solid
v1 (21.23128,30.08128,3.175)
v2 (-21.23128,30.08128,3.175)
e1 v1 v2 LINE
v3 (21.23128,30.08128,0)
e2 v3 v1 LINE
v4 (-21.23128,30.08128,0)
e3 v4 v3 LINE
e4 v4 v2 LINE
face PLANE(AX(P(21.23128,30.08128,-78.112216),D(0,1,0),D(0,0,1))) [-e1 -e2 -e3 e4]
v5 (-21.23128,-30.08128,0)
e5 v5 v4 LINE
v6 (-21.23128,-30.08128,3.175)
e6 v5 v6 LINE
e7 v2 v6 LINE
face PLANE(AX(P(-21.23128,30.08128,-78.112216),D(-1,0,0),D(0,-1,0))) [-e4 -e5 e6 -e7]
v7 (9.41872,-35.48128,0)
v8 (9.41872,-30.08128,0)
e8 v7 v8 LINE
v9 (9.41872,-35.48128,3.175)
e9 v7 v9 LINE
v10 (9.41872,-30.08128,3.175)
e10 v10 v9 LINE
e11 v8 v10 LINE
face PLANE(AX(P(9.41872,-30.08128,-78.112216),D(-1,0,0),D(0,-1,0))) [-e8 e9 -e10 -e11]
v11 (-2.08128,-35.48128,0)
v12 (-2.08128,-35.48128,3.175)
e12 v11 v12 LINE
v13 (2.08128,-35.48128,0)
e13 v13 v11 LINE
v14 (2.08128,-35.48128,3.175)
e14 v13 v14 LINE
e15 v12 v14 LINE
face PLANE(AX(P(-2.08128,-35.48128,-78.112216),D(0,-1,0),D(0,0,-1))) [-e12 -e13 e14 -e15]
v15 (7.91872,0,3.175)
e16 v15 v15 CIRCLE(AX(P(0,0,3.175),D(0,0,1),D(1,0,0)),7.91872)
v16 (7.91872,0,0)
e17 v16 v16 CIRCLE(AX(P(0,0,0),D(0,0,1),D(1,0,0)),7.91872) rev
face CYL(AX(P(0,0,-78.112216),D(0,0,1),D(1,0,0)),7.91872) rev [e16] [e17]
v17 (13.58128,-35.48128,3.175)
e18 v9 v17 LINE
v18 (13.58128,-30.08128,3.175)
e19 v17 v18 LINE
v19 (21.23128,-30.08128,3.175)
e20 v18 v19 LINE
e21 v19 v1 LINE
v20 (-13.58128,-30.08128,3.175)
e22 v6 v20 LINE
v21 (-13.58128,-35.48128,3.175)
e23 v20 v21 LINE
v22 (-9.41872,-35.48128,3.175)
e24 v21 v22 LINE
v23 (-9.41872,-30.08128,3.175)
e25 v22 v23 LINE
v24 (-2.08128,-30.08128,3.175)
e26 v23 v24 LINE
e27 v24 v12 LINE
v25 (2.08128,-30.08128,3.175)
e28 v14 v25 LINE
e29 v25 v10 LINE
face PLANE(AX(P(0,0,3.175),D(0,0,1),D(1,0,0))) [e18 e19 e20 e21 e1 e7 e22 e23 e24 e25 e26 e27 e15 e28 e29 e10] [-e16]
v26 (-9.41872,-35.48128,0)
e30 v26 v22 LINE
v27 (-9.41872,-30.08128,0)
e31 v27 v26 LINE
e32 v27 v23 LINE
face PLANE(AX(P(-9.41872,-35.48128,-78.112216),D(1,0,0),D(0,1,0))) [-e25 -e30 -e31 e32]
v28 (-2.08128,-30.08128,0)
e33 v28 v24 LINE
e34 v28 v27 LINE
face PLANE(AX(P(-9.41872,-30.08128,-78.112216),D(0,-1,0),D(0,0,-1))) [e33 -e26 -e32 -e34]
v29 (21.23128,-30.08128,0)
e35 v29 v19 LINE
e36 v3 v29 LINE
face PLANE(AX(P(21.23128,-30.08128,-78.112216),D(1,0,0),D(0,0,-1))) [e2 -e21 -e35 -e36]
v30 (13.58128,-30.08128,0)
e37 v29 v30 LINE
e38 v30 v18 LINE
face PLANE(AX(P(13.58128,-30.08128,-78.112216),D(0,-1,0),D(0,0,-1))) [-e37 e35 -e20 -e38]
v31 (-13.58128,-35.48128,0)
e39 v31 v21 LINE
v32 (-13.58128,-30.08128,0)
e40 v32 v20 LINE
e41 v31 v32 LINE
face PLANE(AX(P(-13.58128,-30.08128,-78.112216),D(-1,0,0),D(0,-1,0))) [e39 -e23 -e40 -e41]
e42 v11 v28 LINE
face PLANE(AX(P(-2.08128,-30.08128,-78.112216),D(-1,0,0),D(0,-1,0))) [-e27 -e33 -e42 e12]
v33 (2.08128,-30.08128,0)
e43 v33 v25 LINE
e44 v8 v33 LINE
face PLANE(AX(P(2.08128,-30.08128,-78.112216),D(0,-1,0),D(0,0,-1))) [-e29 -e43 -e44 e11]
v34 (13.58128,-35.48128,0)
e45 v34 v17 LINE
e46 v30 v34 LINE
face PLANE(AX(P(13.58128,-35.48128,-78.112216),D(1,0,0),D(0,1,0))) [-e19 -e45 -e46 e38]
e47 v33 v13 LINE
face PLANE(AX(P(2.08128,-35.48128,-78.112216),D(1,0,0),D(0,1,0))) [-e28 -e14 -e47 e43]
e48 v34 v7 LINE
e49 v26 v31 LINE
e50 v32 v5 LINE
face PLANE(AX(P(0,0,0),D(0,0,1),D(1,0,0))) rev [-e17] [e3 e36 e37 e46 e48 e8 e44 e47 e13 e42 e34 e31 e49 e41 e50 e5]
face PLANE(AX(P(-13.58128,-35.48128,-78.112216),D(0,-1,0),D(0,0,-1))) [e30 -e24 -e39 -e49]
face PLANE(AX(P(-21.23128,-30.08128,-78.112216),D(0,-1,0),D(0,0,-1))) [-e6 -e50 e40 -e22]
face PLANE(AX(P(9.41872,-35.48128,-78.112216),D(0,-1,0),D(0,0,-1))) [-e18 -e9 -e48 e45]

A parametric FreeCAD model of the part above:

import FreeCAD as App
import Part
import Sketcher
Q = App.Units.Quantity

doc = App.newDocument("Part")
body = doc.addObject("PartDesign::Body", "Body")

# Sketch on XY plane
sketch1 = doc.addObject("Sketcher::SketchObject", "Sketch")
body.addObject(sketch1)
sketch1.AttachmentSupport = (doc.XY_Plane, [""])
sketch1.MapMode = "FlatFace"
sketch1.addGeometry(Part.LineSegment(App.Vector(-21.15, 30, 0), App.Vector(-21.15, -30, 0)), False)
sketch1.addGeometry(Part.LineSegment(App.Vector(-21.15, -30, 0), App.Vector(-13.5, -30, 0)), False)
sketch1.addGeometry(Part.LineSegment(App.Vector(-13.5, -30, 0), App.Vector(-13.5, -35.4, 0)), False)
sketch1.addGeometry(Part.LineSegment(App.Vector(-13.5, -35.4, 0), App.Vector(-9.5, -35.4, 0)), False)
sketch1.addGeometry(Part.LineSegment(App.Vector(-9.5, -35.4, 0), App.Vector(-9.5, -30, 0)), False)
sketch1.addGeometry(Part.LineSegment(App.Vector(-9.5, -30, 0), App.Vector(-2, -30, 0)), False)
sketch1.addGeometry(Part.LineSegment(App.Vector(-2, -30, 0), App.Vector(-2, -35.4, 0)), False)
sketch1.addGeometry(Part.LineSegment(App.Vector(-2, -35.4, 0), App.Vector(2, -35.4, 0)), False)
sketch1.addGeometry(Part.LineSegment(App.Vector(2, -35.4, 0), App.Vector(2, -30, 0)), False)
sketch1.addGeometry(Part.LineSegment(App.Vector(2, -30, 0), App.Vector(9.5, -30, 0)), False)
sketch1.addGeometry(Part.LineSegment(App.Vector(9.5, -30, 0), App.Vector(9.5, -35.4, 0)), False)
sketch1.addGeometry(Part.LineSegment(App.Vector(9.5, -35.4, 0), App.Vector(13.5, -35.4, 0)), False)
sketch1.addGeometry(Part.LineSegment(App.Vector(13.5, -35.4, 0), App.Vector(13.5, -30, 0)), False)
sketch1.addGeometry(Part.LineSegment(App.Vector(13.5, -30, 0), App.Vector(21.15, -30, 0)), False)
sketch1.addGeometry(Part.LineSegment(App.Vector(21.15, -30, 0), App.Vector(21.15, 30, 0)), False)
sketch1.addGeometry(Part.LineSegment(App.Vector(21.15, 30, 0), App.Vector(-21.15, 30, 0)), False)
sketch1.addGeometry(Part.Circle(App.Vector(0, 0, 0), App.Vector(0, 0, 1), 8), False)
sketch1.addConstraint(Sketcher.Constraint("Coincident", 0, 2, 1, 1))
sketch1.addConstraint(Sketcher.Constraint("Coincident", 1, 2, 2, 1))
sketch1.addConstraint(Sketcher.Constraint("Coincident", 2, 2, 3, 1))
sketch1.addConstraint(Sketcher.Constraint("Coincident", 3, 2, 4, 1))
sketch1.addConstraint(Sketcher.Constraint("Coincident", 4, 2, 5, 1))
sketch1.addConstraint(Sketcher.Constraint("Coincident", 5, 2, 6, 1))
sketch1.addConstraint(Sketcher.Constraint("Coincident", 6, 2, 7, 1))
sketch1.addConstraint(Sketcher.Constraint("Coincident", 7, 2, 8, 1))
sketch1.addConstraint(Sketcher.Constraint("Coincident", 8, 2, 9, 1))
sketch1.addConstraint(Sketcher.Constraint("Coincident", 9, 2, 10, 1))
sketch1.addConstraint(Sketcher.Constraint("Coincident", 10, 2, 11, 1))
sketch1.addConstraint(Sketcher.Constraint("Coincident", 11, 2, 12, 1))
sketch1.addConstraint(Sketcher.Constraint("Coincident", 12, 2, 13, 1))
sketch1.addConstraint(Sketcher.Constraint("Coincident", 13, 2, 14, 1))
sketch1.addConstraint(Sketcher.Constraint("Coincident", 14, 2, 15, 1))
sketch1.addConstraint(Sketcher.Constraint("Coincident", 15, 2, 0, 1))
sketch1.addConstraint(Sketcher.Constraint("Vertical", 0))
sketch1.addConstraint(Sketcher.Constraint("Horizontal", 1))
sketch1.addConstraint(Sketcher.Constraint("Vertical", 2))
sketch1.addConstraint(Sketcher.Constraint("Horizontal", 3))
sketch1.addConstraint(Sketcher.Constraint("Vertical", 4))
sketch1.addConstraint(Sketcher.Constraint("Horizontal", 5))
sketch1.addConstraint(Sketcher.Constraint("Vertical", 6))
sketch1.addConstraint(Sketcher.Constraint("Horizontal", 7))
sketch1.addConstraint(Sketcher.Constraint("Vertical", 8))
sketch1.addConstraint(Sketcher.Constraint("Horizontal", 9))
sketch1.addConstraint(Sketcher.Constraint("Vertical", 10))
sketch1.addConstraint(Sketcher.Constraint("Horizontal", 11))
sketch1.addConstraint(Sketcher.Constraint("Vertical", 12))
sketch1.addConstraint(Sketcher.Constraint("Horizontal", 13))
sketch1.addConstraint(Sketcher.Constraint("Vertical", 14))
sketch1.addConstraint(Sketcher.Constraint("Horizontal", 15))
sketch1.addConstraint(Sketcher.Constraint("Coincident", 16, 3, -1, 1))
sketch1.addConstraint(Sketcher.Constraint("Symmetric", 0, 2, 14, 2, -1, 1))
sketch1.addConstraint(Sketcher.Constraint("Symmetric", 5, 2, 8, 2, -2))
sketch1.addConstraint(Sketcher.Constraint("Symmetric", 3, 2, 10, 2, -2))
sketch1.addConstraint(Sketcher.Constraint("Symmetric", 1, 2, 12, 2, -2))
sketch1.addConstraint(Sketcher.Constraint("Horizontal", 1, 2, 4, 2))
sketch1.addConstraint(Sketcher.Constraint("Horizontal", 3, 2, 6, 2))
sketch1.addConstraint(Sketcher.Constraint("Equal", 3, 7))
sketch1.addConstraint(Sketcher.Constraint("Diameter", 16, Q("16 mm")))
sketch1.addConstraint(Sketcher.Constraint("DistanceX", 3, 1, 3, 2, Q("4 mm")))
sketch1.addConstraint(Sketcher.Constraint("DistanceY", 0, 2, 0, 1, Q("60 mm")))
sketch1.addConstraint(Sketcher.Constraint("DistanceX", 5, 1, 5, 2, Q("7.5 mm")))
sketch1.addConstraint(Sketcher.Constraint("DistanceX", 15, 2, 15, 1, Q("42.3 mm")))
sketch1.addConstraint(Sketcher.Constraint("DistanceY", 2, 2, 2, 1, Q("5.4 mm")))
pad1 = doc.addObject("PartDesign::Pad", "Pad")
body.addObject(pad1)
pad1.Profile = sketch1
pad1.Length = 3.175

# Sketch on XY plane
sketch2 = doc.addObject("Sketcher::SketchObject", "Sketch001")
body.addObject(sketch2)
sketch2.AttachmentSupport = (doc.XY_Plane, [""])
sketch2.MapMode = "FlatFace"
sketch2.AttachmentOffset = App.Placement(App.Vector(0, 0, 3.175), App.Rotation())
sketch2.addGeometry(Part.LineSegment(App.Vector(21.19064, -30.04064, 0), App.Vector(21.19064, 30.04064, 0)), False)
sketch2.addGeometry(Part.LineSegment(App.Vector(21.19064, 30.04064, 0), App.Vector(-21.19064, 30.04064, 0)), False)
sketch2.addGeometry(Part.LineSegment(App.Vector(-21.19064, 30.04064, 0), App.Vector(-21.19064, -30.04064, 0)), False)
sketch2.addGeometry(Part.LineSegment(App.Vector(-21.19064, -30.04064, 0), App.Vector(-13.54064, -30.04064, 0)), False)
sketch2.addGeometry(Part.LineSegment(App.Vector(-13.54064, -30.04064, 0), App.Vector(-13.54064, -35.44064, 0)), False)
sketch2.addGeometry(Part.LineSegment(App.Vector(-13.54064, -35.44064, 0), App.Vector(-9.45936, -35.44064, 0)), False)
sketch2.addGeometry(Part.LineSegment(App.Vector(-9.45936, -35.44064, 0), App.Vector(-9.45936, -30.04064, 0)), False)
sketch2.addGeometry(Part.LineSegment(App.Vector(-9.45936, -30.04064, 0), App.Vector(-2.04064, -30.04064, 0)), False)
sketch2.addGeometry(Part.LineSegment(App.Vector(-2.04064, -30.04064, 0), App.Vector(-2.04064, -35.44064, 0)), False)
sketch2.addGeometry(Part.LineSegment(App.Vector(-2.04064, -35.44064, 0), App.Vector(2.04064, -35.44064, 0)), False)
sketch2.addGeometry(Part.LineSegment(App.Vector(2.04064, -35.44064, 0), App.Vector(2.04064, -30.04064, 0)), False)
sketch2.addGeometry(Part.LineSegment(App.Vector(2.04064, -30.04064, 0), App.Vector(9.45936, -30.04064, 0)), False)
sketch2.addGeometry(Part.LineSegment(App.Vector(9.45936, -30.04064, 0), App.Vector(9.45936, -35.44064, 0)), False)
sketch2.addGeometry(Part.LineSegment(App.Vector(9.45936, -35.44064, 0), App.Vector(13.54064, -35.44064, 0)), False)
sketch2.addGeometry(Part.LineSegment(App.Vector(13.54064, -35.44064, 0), App.Vector(13.54064, -30.04064, 0)), False)
sketch2.addGeometry(Part.LineSegment(App.Vector(13.54064, -30.04064, 0), App.Vector(21.19064, -30.04064, 0)), False)
sketch2.addGeometry(Part.Circle(App.Vector(0, 0, 0), App.Vector(0, 0, 1), 7.95936), False)
sketch2.addConstraint(Sketcher.Constraint("Coincident", 0, 2, 1, 1))
sketch2.addConstraint(Sketcher.Constraint("Coincident", 1, 2, 2, 1))
sketch2.addConstraint(Sketcher.Constraint("Coincident", 2, 2, 3, 1))
sketch2.addConstraint(Sketcher.Constraint("Coincident", 3, 2, 4, 1))
sketch2.addConstraint(Sketcher.Constraint("Coincident", 4, 2, 5, 1))
sketch2.addConstraint(Sketcher.Constraint("Coincident", 5, 2, 6, 1))
sketch2.addConstraint(Sketcher.Constraint("Coincident", 6, 2, 7, 1))
sketch2.addConstraint(Sketcher.Constraint("Coincident", 7, 2, 8, 1))
sketch2.addConstraint(Sketcher.Constraint("Coincident", 8, 2, 9, 1))
sketch2.addConstraint(Sketcher.Constraint("Coincident", 9, 2, 10, 1))
sketch2.addConstraint(Sketcher.Constraint("Coincident", 10, 2, 11, 1))
sketch2.addConstraint(Sketcher.Constraint("Coincident", 11, 2, 12, 1))
sketch2.addConstraint(Sketcher.Constraint("Coincident", 12, 2, 13, 1))
sketch2.addConstraint(Sketcher.Constraint("Coincident", 13, 2, 14, 1))
sketch2.addConstraint(Sketcher.Constraint("Coincident", 14, 2, 15, 1))
sketch2.addConstraint(Sketcher.Constraint("Coincident", 15, 2, 0, 1))
sketch2.addConstraint(Sketcher.Constraint("Vertical", 0))
sketch2.addConstraint(Sketcher.Constraint("Horizontal", 1))
sketch2.addConstraint(Sketcher.Constraint("Vertical", 2))
sketch2.addConstraint(Sketcher.Constraint("Horizontal", 3))
sketch2.addConstraint(Sketcher.Constraint("Vertical", 4))
sketch2.addConstraint(Sketcher.Constraint("Horizontal", 5))
sketch2.addConstraint(Sketcher.Constraint("Vertical", 6))
sketch2.addConstraint(Sketcher.Constraint("Horizontal", 7))
sketch2.addConstraint(Sketcher.Constraint("Vertical", 8))
sketch2.addConstraint(Sketcher.Constraint("Horizontal", 9))
sketch2.addConstraint(Sketcher.Constraint("Vertical", 10))
sketch2.addConstraint(Sketcher.Constraint("Horizontal", 11))
sketch2.addConstraint(Sketcher.Constraint("Vertical", 12))
sketch2.addConstraint(Sketcher.Constraint("Horizontal", 13))
sketch2.addConstraint(Sketcher.Constraint("Vertical", 14))
sketch2.addConstraint(Sketcher.Constraint("Horizontal", 15))
sketch2.addConstraint(Sketcher.Constraint("Coincident", 16, 3, -1, 1))
sketch2.addConstraint(Sketcher.Constraint("Symmetric", 0, 2, 2, 2, -1, 1))
sketch2.addConstraint(Sketcher.Constraint("Symmetric", 7, 2, 10, 2, -2))
sketch2.addConstraint(Sketcher.Constraint("Symmetric", 5, 2, 12, 2, -2))
sketch2.addConstraint(Sketcher.Constraint("Symmetric", 3, 2, 14, 2, -2))
sketch2.addConstraint(Sketcher.Constraint("Horizontal", 3, 2, 6, 2))
sketch2.addConstraint(Sketcher.Constraint("Horizontal", 5, 2, 8, 2))
sketch2.addConstraint(Sketcher.Constraint("Equal", 5, 9))
sketch2.addConstraint(Sketcher.Constraint("DistanceY", 4, 2, 4, 1, Q("5.4 mm")))
sketch2.addConstraint(Sketcher.Constraint("DistanceX", 3, 1, 3, 2, Q("7.65 mm")))
sketch2.addConstraint(Sketcher.Constraint("DistanceX", 3, 2, 7, 2, Q("11.5 mm")))
sketch2.addConstraint(Sketcher.Constraint("Diameter", 16, Q("15.91872 mm")))
sketch2.addConstraint(Sketcher.Constraint("DistanceX", 1, 2, 1, 1, Q("42.38128 mm")))
sketch2.addConstraint(Sketcher.Constraint("DistanceY", 0, 1, 0, 2, Q("60.08128 mm")))
pad2 = doc.addObject("PartDesign::Pad", "Pad001")
body.addObject(pad2)
pad2.Profile = sketch2
pad2.Length = 3.175
pad2.Reversed = True

# Sketch on XY plane
sketch3 = doc.addObject("Sketcher::SketchObject", "Sketch002")
body.addObject(sketch3)
sketch3.AttachmentSupport = (doc.XY_Plane, [""])
sketch3.MapMode = "FlatFace"
sketch3.AttachmentOffset = App.Placement(App.Vector(0, 0, 3.175), App.Rotation())
sketch3.addGeometry(Part.LineSegment(App.Vector(-21.23128, 30.08128, 0), App.Vector(-21.23128, -30.08128, 0)), False)
sketch3.addGeometry(Part.LineSegment(App.Vector(-21.23128, -30.08128, 0), App.Vector(-13.58128, -30.08128, 0)), False)
sketch3.addGeometry(Part.LineSegment(App.Vector(-13.58128, -30.08128, 0), App.Vector(-13.58128, -35.48128, 0)), False)
sketch3.addGeometry(Part.LineSegment(App.Vector(-13.58128, -35.48128, 0), App.Vector(-9.41872, -35.48128, 0)), False)
sketch3.addGeometry(Part.LineSegment(App.Vector(-9.41872, -35.48128, 0), App.Vector(-9.41872, -30.08128, 0)), False)
sketch3.addGeometry(Part.LineSegment(App.Vector(-9.41872, -30.08128, 0), App.Vector(-2.08128, -30.08128, 0)), False)
sketch3.addGeometry(Part.LineSegment(App.Vector(-2.08128, -30.08128, 0), App.Vector(-2.08128, -35.48128, 0)), False)
sketch3.addGeometry(Part.LineSegment(App.Vector(-2.08128, -35.48128, 0), App.Vector(2.08128, -35.48128, 0)), False)
sketch3.addGeometry(Part.LineSegment(App.Vector(2.08128, -35.48128, 0), App.Vector(2.08128, -30.08128, 0)), False)
sketch3.addGeometry(Part.LineSegment(App.Vector(2.08128, -30.08128, 0), App.Vector(9.41872, -30.08128, 0)), False)
sketch3.addGeometry(Part.LineSegment(App.Vector(9.41872, -30.08128, 0), App.Vector(9.41872, -35.48128, 0)), False)
sketch3.addGeometry(Part.LineSegment(App.Vector(9.41872, -35.48128, 0), App.Vector(13.58128, -35.48128, 0)), False)
sketch3.addGeometry(Part.LineSegment(App.Vector(13.58128, -35.48128, 0), App.Vector(13.58128, -30.08128, 0)), False)
sketch3.addGeometry(Part.LineSegment(App.Vector(13.58128, -30.08128, 0), App.Vector(21.23128, -30.08128, 0)), False)
sketch3.addGeometry(Part.LineSegment(App.Vector(21.23128, -30.08128, 0), App.Vector(21.23128, 30.08128, 0)), False)
sketch3.addGeometry(Part.LineSegment(App.Vector(21.23128, 30.08128, 0), App.Vector(-21.23128, 30.08128, 0)), False)
sketch3.addGeometry(Part.Circle(App.Vector(0, 0, 0), App.Vector(0, 0, 1), 7.91872), False)
sketch3.addConstraint(Sketcher.Constraint("Coincident", 0, 2, 1, 1))
sketch3.addConstraint(Sketcher.Constraint("Coincident", 1, 2, 2, 1))
sketch3.addConstraint(Sketcher.Constraint("Coincident", 2, 2, 3, 1))
sketch3.addConstraint(Sketcher.Constraint("Coincident", 3, 2, 4, 1))
sketch3.addConstraint(Sketcher.Constraint("Coincident", 4, 2, 5, 1))
sketch3.addConstraint(Sketcher.Constraint("Coincident", 5, 2, 6, 1))
sketch3.addConstraint(Sketcher.Constraint("Coincident", 6, 2, 7, 1))
sketch3.addConstraint(Sketcher.Constraint("Coincident", 7, 2, 8, 1))
sketch3.addConstraint(Sketcher.Constraint("Coincident", 8, 2, 9, 1))
sketch3.addConstraint(Sketcher.Constraint("Coincident", 9, 2, 10, 1))
sketch3.addConstraint(Sketcher.Constraint("Coincident", 10, 2, 11, 1))
sketch3.addConstraint(Sketcher.Constraint("Coincident", 11, 2, 12, 1))
sketch3.addConstraint(Sketcher.Constraint("Coincident", 12, 2, 13, 1))
sketch3.addConstraint(Sketcher.Constraint("Coincident", 13, 2, 14, 1))
sketch3.addConstraint(Sketcher.Constraint("Coincident", 14, 2, 15, 1))
sketch3.addConstraint(Sketcher.Constraint("Coincident", 15, 2, 0, 1))
sketch3.addConstraint(Sketcher.Constraint("Vertical", 0))
sketch3.addConstraint(Sketcher.Constraint("Horizontal", 1))
sketch3.addConstraint(Sketcher.Constraint("Vertical", 2))
sketch3.addConstraint(Sketcher.Constraint("Horizontal", 3))
sketch3.addConstraint(Sketcher.Constraint("Vertical", 4))
sketch3.addConstraint(Sketcher.Constraint("Horizontal", 5))
sketch3.addConstraint(Sketcher.Constraint("Vertical", 6))
sketch3.addConstraint(Sketcher.Constraint("Horizontal", 7))
sketch3.addConstraint(Sketcher.Constraint("Vertical", 8))
sketch3.addConstraint(Sketcher.Constraint("Horizontal", 9))
sketch3.addConstraint(Sketcher.Constraint("Vertical", 10))
sketch3.addConstraint(Sketcher.Constraint("Horizontal", 11))
sketch3.addConstraint(Sketcher.Constraint("Vertical", 12))
sketch3.addConstraint(Sketcher.Constraint("Horizontal", 13))
sketch3.addConstraint(Sketcher.Constraint("Vertical", 14))
sketch3.addConstraint(Sketcher.Constraint("Horizontal", 15))
sketch3.addConstraint(Sketcher.Constraint("Coincident", 16, 3, -1, 1))
sketch3.addConstraint(Sketcher.Constraint("Symmetric", 0, 2, 14, 2, -1, 1))
sketch3.addConstraint(Sketcher.Constraint("Symmetric", 5, 2, 8, 2, -2))
sketch3.addConstraint(Sketcher.Constraint("Symmetric", 3, 2, 10, 2, -2))
sketch3.addConstraint(Sketcher.Constraint("Symmetric", 1, 2, 12, 2, -2))
sketch3.addConstraint(Sketcher.Constraint("Horizontal", 1, 2, 4, 2))
sketch3.addConstraint(Sketcher.Constraint("Horizontal", 3, 2, 6, 2))
sketch3.addConstraint(Sketcher.Constraint("Equal", 3, 7))
sketch3.addConstraint(Sketcher.Constraint("DistanceY", 2, 2, 2, 1, Q("5.4 mm")))
sketch3.addConstraint(Sketcher.Constraint("DistanceX", 1, 1, 1, 2, Q("7.65 mm")))
sketch3.addConstraint(Sketcher.Constraint("DistanceX", 1, 2, 5, 2, Q("11.5 mm")))
sketch3.addConstraint(Sketcher.Constraint("Diameter", 16, Q("15.83744 mm")))
sketch3.addConstraint(Sketcher.Constraint("DistanceX", 3, 1, 3, 2, Q("4.16256 mm")))
sketch3.addConstraint(Sketcher.Constraint("DistanceY", 0, 2, 0, 1, Q("60.16256 mm")))
pad3 = doc.addObject("PartDesign::Pad", "Pad002")
body.addObject(pad3)
pad3.Profile = sketch3
pad3.Length = 3.175
pad3.Reversed = True

doc.recompute()
